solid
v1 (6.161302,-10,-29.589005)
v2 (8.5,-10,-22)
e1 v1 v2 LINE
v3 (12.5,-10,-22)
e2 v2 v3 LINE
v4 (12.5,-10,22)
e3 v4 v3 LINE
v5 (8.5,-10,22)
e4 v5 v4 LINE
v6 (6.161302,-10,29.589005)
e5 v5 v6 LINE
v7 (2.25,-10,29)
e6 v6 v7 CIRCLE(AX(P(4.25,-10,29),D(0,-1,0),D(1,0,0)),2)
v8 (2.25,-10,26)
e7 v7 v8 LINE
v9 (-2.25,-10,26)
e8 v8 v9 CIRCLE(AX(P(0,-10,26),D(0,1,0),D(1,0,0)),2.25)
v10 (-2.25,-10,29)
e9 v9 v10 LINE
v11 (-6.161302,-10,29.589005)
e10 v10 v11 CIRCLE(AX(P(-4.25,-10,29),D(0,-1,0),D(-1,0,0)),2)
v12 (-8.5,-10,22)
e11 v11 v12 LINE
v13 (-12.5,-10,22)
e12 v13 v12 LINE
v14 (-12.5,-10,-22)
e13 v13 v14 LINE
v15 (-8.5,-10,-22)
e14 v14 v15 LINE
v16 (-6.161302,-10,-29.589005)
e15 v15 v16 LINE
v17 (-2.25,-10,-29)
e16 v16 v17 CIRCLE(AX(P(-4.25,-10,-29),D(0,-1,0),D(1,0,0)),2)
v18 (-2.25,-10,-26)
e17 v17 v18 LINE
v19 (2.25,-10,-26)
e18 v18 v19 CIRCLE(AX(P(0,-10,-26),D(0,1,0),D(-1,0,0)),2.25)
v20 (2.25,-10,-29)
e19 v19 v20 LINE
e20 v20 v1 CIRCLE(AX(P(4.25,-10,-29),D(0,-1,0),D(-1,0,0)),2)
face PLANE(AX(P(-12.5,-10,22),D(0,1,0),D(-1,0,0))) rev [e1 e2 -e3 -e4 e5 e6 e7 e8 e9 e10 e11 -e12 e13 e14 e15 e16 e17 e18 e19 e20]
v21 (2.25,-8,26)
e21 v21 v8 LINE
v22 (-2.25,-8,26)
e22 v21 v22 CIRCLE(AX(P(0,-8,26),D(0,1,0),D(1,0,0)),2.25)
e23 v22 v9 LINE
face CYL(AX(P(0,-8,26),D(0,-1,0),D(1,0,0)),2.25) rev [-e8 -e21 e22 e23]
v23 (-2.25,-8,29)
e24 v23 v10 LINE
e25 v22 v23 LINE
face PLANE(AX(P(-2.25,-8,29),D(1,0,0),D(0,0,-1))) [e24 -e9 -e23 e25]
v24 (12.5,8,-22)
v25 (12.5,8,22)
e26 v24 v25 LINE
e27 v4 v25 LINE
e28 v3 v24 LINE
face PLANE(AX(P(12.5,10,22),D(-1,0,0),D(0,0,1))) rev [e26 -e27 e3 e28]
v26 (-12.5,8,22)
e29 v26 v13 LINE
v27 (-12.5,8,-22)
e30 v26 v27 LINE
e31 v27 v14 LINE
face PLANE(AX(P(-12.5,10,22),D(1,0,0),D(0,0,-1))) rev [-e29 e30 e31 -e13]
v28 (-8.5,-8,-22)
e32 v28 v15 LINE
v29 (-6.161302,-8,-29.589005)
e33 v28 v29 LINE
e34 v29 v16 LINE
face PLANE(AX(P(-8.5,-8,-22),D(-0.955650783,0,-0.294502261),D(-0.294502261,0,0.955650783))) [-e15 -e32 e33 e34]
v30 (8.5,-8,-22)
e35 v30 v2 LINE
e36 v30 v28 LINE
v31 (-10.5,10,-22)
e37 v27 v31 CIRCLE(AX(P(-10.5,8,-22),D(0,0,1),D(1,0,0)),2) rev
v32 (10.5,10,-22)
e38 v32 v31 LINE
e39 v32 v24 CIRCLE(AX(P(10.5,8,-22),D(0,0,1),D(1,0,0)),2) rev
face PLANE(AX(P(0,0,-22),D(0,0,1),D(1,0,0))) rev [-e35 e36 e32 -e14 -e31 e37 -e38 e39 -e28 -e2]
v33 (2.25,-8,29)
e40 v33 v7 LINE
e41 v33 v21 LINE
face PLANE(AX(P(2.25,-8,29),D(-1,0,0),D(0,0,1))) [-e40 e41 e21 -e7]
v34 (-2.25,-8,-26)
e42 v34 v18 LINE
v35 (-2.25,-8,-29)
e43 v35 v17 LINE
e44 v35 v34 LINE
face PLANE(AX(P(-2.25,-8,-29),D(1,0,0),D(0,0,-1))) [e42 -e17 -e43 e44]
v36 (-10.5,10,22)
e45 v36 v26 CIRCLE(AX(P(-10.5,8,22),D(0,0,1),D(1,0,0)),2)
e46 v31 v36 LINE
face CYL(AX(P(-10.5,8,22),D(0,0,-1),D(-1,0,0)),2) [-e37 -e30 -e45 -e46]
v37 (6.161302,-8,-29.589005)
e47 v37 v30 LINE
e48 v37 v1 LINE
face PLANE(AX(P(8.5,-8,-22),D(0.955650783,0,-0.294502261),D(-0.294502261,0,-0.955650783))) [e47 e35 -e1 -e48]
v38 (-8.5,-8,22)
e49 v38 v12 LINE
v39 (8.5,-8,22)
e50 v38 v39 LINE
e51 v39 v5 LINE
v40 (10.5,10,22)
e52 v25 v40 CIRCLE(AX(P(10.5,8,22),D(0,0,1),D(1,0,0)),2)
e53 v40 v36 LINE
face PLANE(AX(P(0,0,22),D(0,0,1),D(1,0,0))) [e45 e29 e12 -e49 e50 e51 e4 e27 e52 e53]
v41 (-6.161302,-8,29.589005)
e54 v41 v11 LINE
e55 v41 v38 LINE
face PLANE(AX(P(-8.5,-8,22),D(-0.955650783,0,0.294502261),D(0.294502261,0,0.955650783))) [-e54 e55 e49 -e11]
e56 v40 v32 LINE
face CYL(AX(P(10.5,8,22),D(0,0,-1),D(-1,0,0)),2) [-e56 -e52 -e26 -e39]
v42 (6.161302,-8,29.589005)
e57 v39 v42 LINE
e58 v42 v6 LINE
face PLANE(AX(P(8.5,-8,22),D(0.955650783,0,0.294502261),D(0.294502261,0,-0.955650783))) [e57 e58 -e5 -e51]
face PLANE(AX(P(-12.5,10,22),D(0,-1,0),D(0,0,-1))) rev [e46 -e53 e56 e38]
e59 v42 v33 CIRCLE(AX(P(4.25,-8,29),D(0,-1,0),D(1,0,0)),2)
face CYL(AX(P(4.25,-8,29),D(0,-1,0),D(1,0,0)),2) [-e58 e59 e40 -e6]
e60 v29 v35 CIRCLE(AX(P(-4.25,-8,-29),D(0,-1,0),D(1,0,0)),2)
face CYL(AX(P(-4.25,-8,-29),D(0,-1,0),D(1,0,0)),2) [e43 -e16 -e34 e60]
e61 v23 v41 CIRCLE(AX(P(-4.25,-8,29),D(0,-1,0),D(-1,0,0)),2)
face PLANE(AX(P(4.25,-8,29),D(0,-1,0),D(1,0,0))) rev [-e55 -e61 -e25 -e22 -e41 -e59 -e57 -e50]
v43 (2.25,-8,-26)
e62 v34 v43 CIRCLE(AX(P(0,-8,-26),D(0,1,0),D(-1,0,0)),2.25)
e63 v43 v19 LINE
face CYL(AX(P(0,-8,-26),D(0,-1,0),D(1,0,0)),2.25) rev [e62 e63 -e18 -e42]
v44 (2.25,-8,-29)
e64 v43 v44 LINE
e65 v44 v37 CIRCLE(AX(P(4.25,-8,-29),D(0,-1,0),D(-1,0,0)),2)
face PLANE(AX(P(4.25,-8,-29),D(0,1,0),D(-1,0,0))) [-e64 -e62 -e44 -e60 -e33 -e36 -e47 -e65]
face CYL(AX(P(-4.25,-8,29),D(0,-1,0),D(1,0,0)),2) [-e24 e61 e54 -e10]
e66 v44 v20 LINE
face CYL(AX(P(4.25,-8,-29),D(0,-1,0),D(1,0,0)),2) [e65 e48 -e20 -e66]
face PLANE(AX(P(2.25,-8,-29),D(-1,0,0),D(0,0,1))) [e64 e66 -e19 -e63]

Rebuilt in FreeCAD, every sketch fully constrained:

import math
import FreeCAD as App
import Part
import Sketcher
Q = App.Units.Quantity


def edges_at(feature, points):
    """Names of the edges that pass closest to the given points."""
    edges = feature.Shape.Edges
    near = lambda p: min(range(len(edges)), key=lambda i: edges[i].distToShape(Part.Vertex(*p))[0])
    return sorted({f"Edge{near(p) + 1}" for p in points})

doc = App.newDocument("Part")
params = doc.addObject("Spreadsheet::Sheet", "Params")
for row, (alias, value) in enumerate([
    ("sketch1_width", "25 mm"),
    ("sketch1_height", "20 mm"),
    ("pad1_length", "44 mm"),
    ("sketch2_radius", "2 mm"),
    ("sketch2_width", "17 mm"),
    ("sketch2_height", "3 mm"),
    ("sketch2_radius2", "2.25 mm"),
    ("pad2_length", "2 mm"),
    ("fillet_radius", "2 mm"),
], start=1):
    params.set(f"A{row}", alias)
    params.set(f"B{row}", "=" + value)
    params.setAlias(f"B{row}", alias)

body = doc.addObject("PartDesign::Body", "Body")

sketch1 = body.newObject("Sketcher::SketchObject", "Sketch")
sketch1.AttachmentSupport = (doc.getObject("XY_Plane"), [""])
sketch1.MapMode = "FlatFace"
sketch1.addGeometry(Part.LineSegment(App.Vector(-12.5, 10, 0), App.Vector(-12.5, -10, 0)), False)
sketch1.addGeometry(Part.LineSegment(App.Vector(-12.5, -10, 0), App.Vector(12.5, -10, 0)), False)
sketch1.addGeometry(Part.LineSegment(App.Vector(12.5, -10, 0), App.Vector(12.5, 10, 0)), False)
sketch1.addGeometry(Part.LineSegment(App.Vector(12.5, 10, 0), App.Vector(-12.5, 10, 0)), False)
sketch1.addConstraint(Sketcher.Constraint("Coincident", 0, 2, 1, 1))
sketch1.addConstraint(Sketcher.Constraint("Coincident", 1, 2, 2, 1))
sketch1.addConstraint(Sketcher.Constraint("Coincident", 2, 2, 3, 1))
sketch1.addConstraint(Sketcher.Constraint("Coincident", 3, 2, 0, 1))
sketch1.addConstraint(Sketcher.Constraint("Vertical", 0))
sketch1.addConstraint(Sketcher.Constraint("Horizontal", 1))
sketch1.addConstraint(Sketcher.Constraint("Vertical", 2))
sketch1.addConstraint(Sketcher.Constraint("Horizontal", 3))
sketch1.addConstraint(Sketcher.Constraint("Symmetric", 0, 2, 2, 2, -1, 1))
sketch1.addConstraint(Sketcher.Constraint("DistanceX", 1, 1, 1, 2, Q("25 mm")))
sketch1.addConstraint(Sketcher.Constraint("DistanceY", 0, 2, 0, 1, Q("20 mm")))
sketch1.setExpression("Constraints[9]", "Params.sketch1_width")
sketch1.setExpression("Constraints[10]", "Params.sketch1_height")
pad1 = body.newObject("PartDesign::Pad", "Pad")
pad1.Profile = sketch1
pad1.setExpression("Length", "Params.pad1_length")
pad1.Midplane = True

sketch2 = body.newObject("Sketcher::SketchObject", "Sketch001")
sketch2.AttachmentSupport = (doc.getObject("XZ_Plane"), [""])
sketch2.MapMode = "FlatFace"
sketch2.AttachmentOffset = App.Placement(App.Vector(0, 0, 10), App.Rotation())
sketch2.addGeometry(Part.LineSegment(App.Vector(-8.5, -22, 0), App.Vector(-6.161302, -29.589005, 0)), False)
sketch2.addGeometry(Part.ArcOfCircle(Part.Circle(App.Vector(-4.25, -29, 0), App.Vector(0, 0, 1), 2), math.radians(-162.872307), math.radians(0)), False)
sketch2.addGeometry(Part.LineSegment(App.Vector(-2.25, -29, 0), App.Vector(-2.25, -26, 0)), False)
sketch2.addGeometry(Part.ArcOfCircle(Part.Circle(App.Vector(0, -26, 0), App.Vector(0, 0, 1), 2.25), math.radians(0), math.radians(180)), False)
sketch2.addGeometry(Part.LineSegment(App.Vector(2.25, -26, 0), App.Vector(2.25, -29, 0)), False)
sketch2.addGeometry(Part.ArcOfCircle(Part.Circle(App.Vector(4.25, -29, 0), App.Vector(0, 0, 1), 2), math.radians(180), math.radians(342.872307)), False)
sketch2.addGeometry(Part.LineSegment(App.Vector(6.161302, -29.589005, 0), App.Vector(8.5, -22, 0)), False)
sketch2.addGeometry(Part.LineSegment(App.Vector(8.5, -22, 0), App.Vector(-8.5, -22, 0)), False)
sketch2.addGeometry(Part.LineSegment(App.Vector(-8.5, 22, 0), App.Vector(8.5, 22, 0)), False)
sketch2.addGeometry(Part.LineSegment(App.Vector(8.5, 22, 0), App.Vector(6.161302, 29.589005, 0)), False)
sketch2.addGeometry(Part.ArcOfCircle(Part.Circle(App.Vector(4.25, 29, 0), App.Vector(0, 0, 1), 2), math.radians(17.127693), math.radians(180)), False)
sketch2.addGeometry(Part.LineSegment(App.Vector(2.25, 29, 0), App.Vector(2.25, 26, 0)), False)
sketch2.addGeometry(Part.ArcOfCircle(Part.Circle(App.Vector(0, 26, 0), App.Vector(0, 0, 1), 2.25), math.radians(180), math.radians(360)), False)
sketch2.addGeometry(Part.LineSegment(App.Vector(-2.25, 26, 0), App.Vector(-2.25, 29, 0)), False)
sketch2.addGeometry(Part.ArcOfCircle(Part.Circle(App.Vector(-4.25, 29, 0), App.Vector(0, 0, 1), 2), math.radians(0), math.radians(162.872307)), False)
sketch2.addGeometry(Part.LineSegment(App.Vector(-6.161302, 29.589005, 0), App.Vector(-8.5, 22, 0)), False)
sketch2.addConstraint(Sketcher.Constraint("Tangent", 0, 2, 1, 1))
sketch2.addConstraint(Sketcher.Constraint("Tangent", 1, 2, 2, 1))
sketch2.addConstraint(Sketcher.Constraint("Tangent", 2, 2, 3, 2))
sketch2.addConstraint(Sketcher.Constraint("Tangent", 3, 1, 4, 1))
sketch2.addConstraint(Sketcher.Constraint("Tangent", 4, 2, 5, 1))
sketch2.addConstraint(Sketcher.Constraint("Tangent", 5, 2, 6, 1))
sketch2.addConstraint(Sketcher.Constraint("Coincident", 6, 2, 7, 1))
sketch2.addConstraint(Sketcher.Constraint("Coincident", 7, 2, 0, 1))
sketch2.addConstraint(Sketcher.Constraint("Coincident", 8, 2, 9, 1))
sketch2.addConstraint(Sketcher.Constraint("Tangent", 9, 2, 10, 1))
sketch2.addConstraint(Sketcher.Constraint("Tangent", 10, 2, 11, 1))
sketch2.addConstraint(Sketcher.Constraint("Tangent", 11, 2, 12, 2))
sketch2.addConstraint(Sketcher.Constraint("Tangent", 12, 1, 13, 1))
sketch2.addConstraint(Sketcher.Constraint("Tangent", 13, 2, 14, 1))
sketch2.addConstraint(Sketcher.Constraint("Tangent", 14, 2, 15, 1))
sketch2.addConstraint(Sketcher.Constraint("Coincident", 15, 2, 8, 1))
sketch2.addConstraint(Sketcher.Constraint("Vertical", 2))
sketch2.addConstraint(Sketcher.Constraint("Vertical", 4))
sketch2.addConstraint(Sketcher.Constraint("Horizontal", 7))
sketch2.addConstraint(Sketcher.Constraint("Horizontal", 8))
sketch2.addConstraint(Sketcher.Constraint("Vertical", 11))
sketch2.addConstraint(Sketcher.Constraint("Vertical", 13))
sketch2.addConstraint(Sketcher.Constraint("Equal", 1, 5))
sketch2.addConstraint(Sketcher.Constraint("Equal", 5, 10))
sketch2.addConstraint(Sketcher.Constraint("Equal", 3, 12))
sketch2.addConstraint(Sketcher.Constraint("Equal", 10, 14))
sketch2.addConstraint(Sketcher.Constraint("Symmetric", 1, 3, 10, 3, -1, 1))
sketch2.addConstraint(Sketcher.Constraint("Symmetric", 7, 2, 8, 2, -1, 1))
sketch2.addConstraint(Sketcher.Constraint("Symmetric", 5, 2, 14, 2, -1, 1))
sketch2.addConstraint(Sketcher.Constraint("Symmetric", 1, 3, 5, 3, -2))
sketch2.addConstraint(Sketcher.Constraint("Horizontal", 0, 2, 5, 2))
sketch2.addConstraint(Sketcher.Constraint("Equal", 4, 11))
sketch2.addConstraint(Sketcher.Constraint("Radius", 1, Q("2 mm")))
sketch2.addConstraint(Sketcher.Constraint("DistanceX", 7, 2, 7, 1, Q("17 mm")))
sketch2.addConstraint(Sketcher.Constraint("DistanceY", 2, 1, 2, 2, Q("3 mm")))
sketch2.addConstraint(Sketcher.Constraint("Radius", 3, Q("2.25 mm")))
sketch2.addConstraint(Sketcher.Constraint("DistanceY", 1, 3, -1, 1, Q("29 mm")))
sketch2.addConstraint(Sketcher.Constraint("DistanceY", 6, 2, -1, 1, Q("22 mm")))
sketch2.setExpression("Constraints[32]", "Params.sketch2_radius")
sketch2.setExpression("Constraints[33]", "Params.sketch2_width")
sketch2.setExpression("Constraints[34]", "Params.sketch2_height")
sketch2.setExpression("Constraints[35]", "Params.sketch2_radius2")
pad2 = body.newObject("PartDesign::Pad", "Pad001")
pad2.Profile = sketch2
pad2.setExpression("Length", "Params.pad2_length")
pad2.Reversed = True
doc.recompute()

fillet = body.newObject("PartDesign::Fillet", "Fillet")
fillet.Base = (pad2, edges_at(pad2, [(-12.5, 10, 0), (12.5, 10, 0)]))
fillet.setExpression("Radius", "Params.fillet_radius")

doc.recompute()
